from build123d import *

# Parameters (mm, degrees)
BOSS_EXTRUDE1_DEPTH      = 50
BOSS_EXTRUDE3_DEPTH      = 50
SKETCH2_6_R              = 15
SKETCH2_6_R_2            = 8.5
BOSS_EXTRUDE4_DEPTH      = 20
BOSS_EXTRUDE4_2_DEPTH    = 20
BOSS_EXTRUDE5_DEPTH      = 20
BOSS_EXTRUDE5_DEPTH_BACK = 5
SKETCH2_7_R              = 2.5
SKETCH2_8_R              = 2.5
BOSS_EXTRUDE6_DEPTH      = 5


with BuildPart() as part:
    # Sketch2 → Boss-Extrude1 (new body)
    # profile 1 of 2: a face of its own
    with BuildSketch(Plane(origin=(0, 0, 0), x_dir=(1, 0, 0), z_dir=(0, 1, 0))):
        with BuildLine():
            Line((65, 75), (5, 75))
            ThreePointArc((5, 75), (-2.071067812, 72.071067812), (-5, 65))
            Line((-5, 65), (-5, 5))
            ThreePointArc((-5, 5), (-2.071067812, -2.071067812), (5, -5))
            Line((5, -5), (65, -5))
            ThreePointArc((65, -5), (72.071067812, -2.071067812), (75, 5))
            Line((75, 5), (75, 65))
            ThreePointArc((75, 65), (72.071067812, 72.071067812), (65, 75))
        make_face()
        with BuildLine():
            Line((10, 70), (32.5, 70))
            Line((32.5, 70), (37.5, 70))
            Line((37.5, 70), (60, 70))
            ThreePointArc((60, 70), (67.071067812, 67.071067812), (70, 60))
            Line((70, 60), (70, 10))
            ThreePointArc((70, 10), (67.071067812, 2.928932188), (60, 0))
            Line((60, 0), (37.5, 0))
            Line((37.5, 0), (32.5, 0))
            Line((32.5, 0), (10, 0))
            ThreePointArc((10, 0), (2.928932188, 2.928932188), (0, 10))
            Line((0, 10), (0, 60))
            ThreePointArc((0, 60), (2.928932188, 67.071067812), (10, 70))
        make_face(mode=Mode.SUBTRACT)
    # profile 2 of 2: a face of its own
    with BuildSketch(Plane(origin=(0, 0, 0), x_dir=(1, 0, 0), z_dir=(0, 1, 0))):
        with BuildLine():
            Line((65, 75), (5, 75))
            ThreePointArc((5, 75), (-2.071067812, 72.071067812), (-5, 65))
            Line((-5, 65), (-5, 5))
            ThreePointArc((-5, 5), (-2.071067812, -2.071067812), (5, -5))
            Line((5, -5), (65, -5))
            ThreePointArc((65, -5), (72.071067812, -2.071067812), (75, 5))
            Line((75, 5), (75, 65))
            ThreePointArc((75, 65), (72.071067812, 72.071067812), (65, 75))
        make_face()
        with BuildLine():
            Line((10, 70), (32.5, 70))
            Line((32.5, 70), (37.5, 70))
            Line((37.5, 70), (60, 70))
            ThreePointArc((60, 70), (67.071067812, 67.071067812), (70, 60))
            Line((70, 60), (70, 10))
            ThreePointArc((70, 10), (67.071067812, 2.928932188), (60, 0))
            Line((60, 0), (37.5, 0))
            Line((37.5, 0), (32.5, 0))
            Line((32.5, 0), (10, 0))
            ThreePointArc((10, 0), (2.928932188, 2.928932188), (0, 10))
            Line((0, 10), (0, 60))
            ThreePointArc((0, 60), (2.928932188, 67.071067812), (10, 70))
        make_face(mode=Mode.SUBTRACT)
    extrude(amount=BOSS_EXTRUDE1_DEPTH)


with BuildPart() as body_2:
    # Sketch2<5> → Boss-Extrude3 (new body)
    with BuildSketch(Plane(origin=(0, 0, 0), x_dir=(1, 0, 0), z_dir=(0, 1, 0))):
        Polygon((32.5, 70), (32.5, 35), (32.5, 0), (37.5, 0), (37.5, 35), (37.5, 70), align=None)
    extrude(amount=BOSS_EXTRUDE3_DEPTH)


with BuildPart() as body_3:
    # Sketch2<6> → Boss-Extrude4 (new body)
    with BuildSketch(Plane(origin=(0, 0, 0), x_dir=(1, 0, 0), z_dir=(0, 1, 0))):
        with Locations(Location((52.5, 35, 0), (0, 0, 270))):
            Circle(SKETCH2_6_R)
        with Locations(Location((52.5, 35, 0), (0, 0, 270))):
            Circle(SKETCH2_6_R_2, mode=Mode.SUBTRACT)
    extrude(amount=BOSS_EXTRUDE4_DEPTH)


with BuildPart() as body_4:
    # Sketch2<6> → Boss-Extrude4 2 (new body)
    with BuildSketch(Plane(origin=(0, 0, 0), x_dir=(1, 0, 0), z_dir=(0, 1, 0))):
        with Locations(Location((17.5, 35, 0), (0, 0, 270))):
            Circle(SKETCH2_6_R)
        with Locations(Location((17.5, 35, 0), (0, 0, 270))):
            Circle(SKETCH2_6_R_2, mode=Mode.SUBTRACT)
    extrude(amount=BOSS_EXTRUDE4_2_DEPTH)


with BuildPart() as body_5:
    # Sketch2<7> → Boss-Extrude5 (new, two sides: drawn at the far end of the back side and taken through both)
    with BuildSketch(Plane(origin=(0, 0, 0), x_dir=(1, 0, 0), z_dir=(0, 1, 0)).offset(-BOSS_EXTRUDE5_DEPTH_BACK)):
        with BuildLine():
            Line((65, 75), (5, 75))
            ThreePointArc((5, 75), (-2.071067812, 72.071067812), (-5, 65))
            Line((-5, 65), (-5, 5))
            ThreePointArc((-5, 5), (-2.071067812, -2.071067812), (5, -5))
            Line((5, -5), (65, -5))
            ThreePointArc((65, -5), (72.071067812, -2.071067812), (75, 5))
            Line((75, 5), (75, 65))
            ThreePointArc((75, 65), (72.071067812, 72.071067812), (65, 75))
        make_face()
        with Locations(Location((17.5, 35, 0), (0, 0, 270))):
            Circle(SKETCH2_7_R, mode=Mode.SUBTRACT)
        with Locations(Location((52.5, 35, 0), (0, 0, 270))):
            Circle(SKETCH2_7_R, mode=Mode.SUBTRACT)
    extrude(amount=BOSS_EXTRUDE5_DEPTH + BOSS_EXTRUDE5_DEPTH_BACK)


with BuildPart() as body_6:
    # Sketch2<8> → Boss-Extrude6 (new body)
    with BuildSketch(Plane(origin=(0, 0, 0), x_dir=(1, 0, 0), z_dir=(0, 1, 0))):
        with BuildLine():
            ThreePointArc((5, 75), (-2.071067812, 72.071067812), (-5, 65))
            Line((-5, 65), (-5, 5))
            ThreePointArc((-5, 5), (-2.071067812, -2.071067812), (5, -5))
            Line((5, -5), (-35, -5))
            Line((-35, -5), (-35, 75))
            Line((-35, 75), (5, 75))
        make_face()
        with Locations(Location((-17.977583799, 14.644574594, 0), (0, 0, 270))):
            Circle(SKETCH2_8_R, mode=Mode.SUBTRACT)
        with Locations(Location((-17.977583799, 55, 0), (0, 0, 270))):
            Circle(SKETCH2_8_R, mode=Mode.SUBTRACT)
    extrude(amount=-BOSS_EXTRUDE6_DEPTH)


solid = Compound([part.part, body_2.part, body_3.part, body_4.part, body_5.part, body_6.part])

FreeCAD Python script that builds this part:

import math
import FreeCAD as App
import Part
import Sketcher

V = App.Vector
Q = App.Units.Quantity


def add_polygon(sketch, points):
    """Adds a closed chain of lines whose ends are joined by coincident constraints."""
    first, n = sketch.GeometryCount, len(points)
    for a, b in zip(points, points[1:] + points[:1]):
        sketch.addGeometry(Part.LineSegment(App.Vector(*a, 0), App.Vector(*b, 0)), False)
    for i in range(n):
        sketch.addConstraint(Sketcher.Constraint("Coincident", first + i, 2, first + (i + 1) % n, 1))

doc = App.newDocument("Part")
body = doc.addObject("PartDesign::Body", "Body")

# Sketch on XZ plane
sketch1 = body.newObject("Sketcher::SketchObject", "Sketch")
sketch1.AttachmentSupport = (doc.getObject("XZ_Plane"), [""])
sketch1.MapMode = "FlatFace"
sketch1.addGeometry(Part.LineSegment(V(65, -75, 0), V(5, -75, 0)), False)
sketch1.addGeometry(Part.ArcOfCircle(Part.Circle(V(5, -65, 0), V(0, 0, 1), 10), math.radians(180), math.radians(270)), False)
sketch1.addGeometry(Part.LineSegment(V(-5, -65, 0), V(-5, -5, 0)), False)
sketch1.addGeometry(Part.ArcOfCircle(Part.Circle(V(5, -5, 0), V(0, 0, 1), 10), math.radians(90), math.radians(180)), False)
sketch1.addGeometry(Part.LineSegment(V(5, 5, 0), V(65, 5, 0)), False)
sketch1.addGeometry(Part.ArcOfCircle(Part.Circle(V(65, -5, 0), V(0, 0, 1), 10), math.radians(0), math.radians(90)), False)
sketch1.addGeometry(Part.LineSegment(V(75, -5, 0), V(75, -65, 0)), False)
sketch1.addGeometry(Part.ArcOfCircle(Part.Circle(V(65, -65, 0), V(0, 0, 1), 10), math.radians(-90), math.radians(0)), False)
sketch1.addGeometry(Part.ArcOfCircle(Part.Circle(V(10, -60, 0), V(0, 0, 1), 10), math.radians(180), math.radians(270)), False)
sketch1.addGeometry(Part.LineSegment(V(10, -70, 0), V(60, -70, 0)), False)
sketch1.addGeometry(Part.ArcOfCircle(Part.Circle(V(60, -60, 0), V(0, 0, 1), 10), math.radians(-90), math.radians(0)), False)
sketch1.addGeometry(Part.LineSegment(V(70, -60, 0), V(70, -10, 0)), False)
sketch1.addGeometry(Part.ArcOfCircle(Part.Circle(V(60, -10, 0), V(0, 0, 1), 10), math.radians(0), math.radians(90)), False)
sketch1.addGeometry(Part.LineSegment(V(60, 0, 0), V(10, 0, 0)), False)
sketch1.addGeometry(Part.ArcOfCircle(Part.Circle(V(10, -10, 0), V(0, 0, 1), 10), math.radians(90), math.radians(180)), False)
sketch1.addGeometry(Part.LineSegment(V(0, -10, 0), V(0, -60, 0)), False)
sketch1.addConstraint(Sketcher.Constraint("Tangent", 0, 2, 1, 2))
sketch1.addConstraint(Sketcher.Constraint("Tangent", 1, 1, 2, 1))
sketch1.addConstraint(Sketcher.Constraint("Tangent", 2, 2, 3, 2))
sketch1.addConstraint(Sketcher.Constraint("Tangent", 3, 1, 4, 1))
sketch1.addConstraint(Sketcher.Constraint("Tangent", 4, 2, 5, 2))
sketch1.addConstraint(Sketcher.Constraint("Tangent", 5, 1, 6, 1))
sketch1.addConstraint(Sketcher.Constraint("Tangent", 6, 2, 7, 2))
sketch1.addConstraint(Sketcher.Constraint("Tangent", 7, 1, 0, 1))
sketch1.addConstraint(Sketcher.Constraint("Tangent", 8, 2, 9, 1))
sketch1.addConstraint(Sketcher.Constraint("Tangent", 9, 2, 10, 1))
sketch1.addConstraint(Sketcher.Constraint("Tangent", 10, 2, 11, 1))
sketch1.addConstraint(Sketcher.Constraint("Tangent", 11, 2, 12, 1))
sketch1.addConstraint(Sketcher.Constraint("Tangent", 12, 2, 13, 1))
sketch1.addConstraint(Sketcher.Constraint("Tangent", 13, 2, 14, 1))
sketch1.addConstraint(Sketcher.Constraint("Tangent", 14, 2, 15, 1))
sketch1.addConstraint(Sketcher.Constraint("Tangent", 15, 2, 8, 1))
sketch1.addConstraint(Sketcher.Constraint("Horizontal", 0))
sketch1.addConstraint(Sketcher.Constraint("Vertical", 2))
sketch1.addConstraint(Sketcher.Constraint("Horizontal", 4))
sketch1.addConstraint(Sketcher.Constraint("Vertical", 6))
sketch1.addConstraint(Sketcher.Constraint("Horizontal", 9))
sketch1.addConstraint(Sketcher.Constraint("Vertical", 11))
sketch1.addConstraint(Sketcher.Constraint("Horizontal", 13))
sketch1.addConstraint(Sketcher.Constraint("Vertical", 15))
sketch1.addConstraint(Sketcher.Constraint("Equal", 1, 3))
sketch1.addConstraint(Sketcher.Constraint("Equal", 3, 5))
sketch1.addConstraint(Sketcher.Constraint("Equal", 5, 7))
sketch1.addConstraint(Sketcher.Constraint("Equal", 7, 8))
sketch1.addConstraint(Sketcher.Constraint("Equal", 8, 10))
sketch1.addConstraint(Sketcher.Constraint("Equal", 10, 12))
sketch1.addConstraint(Sketcher.Constraint("Equal", 12, 14))
sketch1.addConstraint(Sketcher.Constraint("Symmetric", 2, 2, 3, 1, -1, 1))
sketch1.addConstraint(Sketcher.Constraint("PointOnObject", 12, 2, -1))
sketch1.addConstraint(Sketcher.Constraint("PointOnObject", 14, 2, -2))
sketch1.addConstraint(Sketcher.Constraint("Equal", 4, 2))
sketch1.addConstraint(Sketcher.Constraint("Equal", 13, 11))
sketch1.addConstraint(Sketcher.Constraint("Radius", 1, Q("10 mm")))
sketch1.addConstraint(Sketcher.Constraint("DistanceX", 0, 2, 0, 1, Q("60 mm")))
sketch1.addConstraint(Sketcher.Constraint("DistanceX", 9, 1, 9, 2, Q("50 mm")))
pad1 = body.newObject("PartDesign::Pad", "Pad")
pad1.Profile = sketch1
pad1.Length = 50
pad1.Reversed = True
body2 = doc.addObject("PartDesign::Body", "Body001")

# Sketch on XZ plane
sketch2 = body2.newObject("Sketcher::SketchObject", "Sketch001")
sketch2.AttachmentSupport = (doc.getObject("XZ_Plane001"), [""])
sketch2.MapMode = "FlatFace"
add_polygon(sketch2, [(32, -70), (32, 0), (38, 0), (38, -70)])  # lines 0-3
sketch2.addConstraint(Sketcher.Constraint("Vertical", 0))
sketch2.addConstraint(Sketcher.Constraint("Horizontal", 1))
sketch2.addConstraint(Sketcher.Constraint("Vertical", 2))
sketch2.addConstraint(Sketcher.Constraint("Horizontal", 3))
sketch2.addConstraint(Sketcher.Constraint("PointOnObject", 0, 2, -1))
sketch2.addConstraint(Sketcher.Constraint("DistanceX", 1, 1, 1, 2, Q("5 mm")))
sketch2.addConstraint(Sketcher.Constraint("DistanceY", 0, 1, 0, 2, Q("70 mm")))
sketch2.addConstraint(Sketcher.Constraint("DistanceX", -1, 1, 0, 2, Q("32.5 mm")))
pad2 = body2.newObject("PartDesign::Pad", "Pad001")
pad2.Profile = sketch2
pad2.Length = 50
pad2.Reversed = True
body3 = doc.addObject("PartDesign::Body", "Body002")

# Sketch on XZ plane
sketch3 = body3.newObject("Sketcher::SketchObject", "Sketch002")
sketch3.AttachmentSupport = (doc.getObject("XZ_Plane002"), [""])
sketch3.MapMode = "FlatFace"
sketch3.addGeometry(Part.Circle(V(52, -35, 0), V(0, 0, 1), 15), False)
sketch3.addGeometry(Part.Circle(V(52, -35, 0), V(0, 0, 1), 8), False)
sketch3.addConstraint(Sketcher.Constraint("Coincident", 1, 3, 0, 3))
sketch3.addConstraint(Sketcher.Constraint("Diameter", 0, Q("30 mm")))
sketch3.addConstraint(Sketcher.Constraint("Diameter", 1, Q("17 mm")))
sketch3.addConstraint(Sketcher.Constraint("DistanceY", 0, 3, -1, 1, Q("35 mm")))
sketch3.addConstraint(Sketcher.Constraint("DistanceX", -1, 1, 0, 3, Q("52.5 mm")))
pad3 = body3.newObject("PartDesign::Pad", "Pad002")
pad3.Profile = sketch3
pad3.Length = 20
pad3.Reversed = True
body4 = doc.addObject("PartDesign::Body", "Body003")

# Sketch on XZ plane
sketch4 = body4.newObject("Sketcher::SketchObject", "Sketch003")
sketch4.AttachmentSupport = (doc.getObject("XZ_Plane003"), [""])
sketch4.MapMode = "FlatFace"
sketch4.addGeometry(Part.Circle(V(18, -35, 0), V(0, 0, 1), 15), False)
sketch4.addGeometry(Part.Circle(V(18, -35, 0), V(0, 0, 1), 8), False)
sketch4.addConstraint(Sketcher.Constraint("Coincident", 1, 3, 0, 3))
sketch4.addConstraint(Sketcher.Constraint("Diameter", 0, Q("30 mm")))
sketch4.addConstraint(Sketcher.Constraint("Diameter", 1, Q("17 mm")))
sketch4.addConstraint(Sketcher.Constraint("DistanceY", 0, 3, -1, 1, Q("35 mm")))
sketch4.addConstraint(Sketcher.Constraint("DistanceX", -1, 1, 0, 3, Q("17.5 mm")))
pad4 = body4.newObject("PartDesign::Pad", "Pad003")
pad4.Profile = sketch4
pad4.Length = 20
pad4.Reversed = True
body5 = doc.addObject("PartDesign::Body", "Body004")

# Sketch on XZ plane
sketch5 = body5.newObject("Sketcher::SketchObject", "Sketch004")
sketch5.AttachmentSupport = (doc.getObject("XZ_Plane004"), [""])
sketch5.MapMode = "FlatFace"
sketch5.addGeometry(Part.LineSegment(V(65, -75, 0), V(5, -75, 0)), False)
sketch5.addGeometry(Part.ArcOfCircle(Part.Circle(V(5, -65, 0), V(0, 0, 1), 10), math.radians(180), math.radians(270)), False)
sketch5.addGeometry(Part.LineSegment(V(-5, -65, 0), V(-5, -5, 0)), False)
sketch5.addGeometry(Part.ArcOfCircle(Part.Circle(V(5, -5, 0), V(0, 0, 1), 10), math.radians(90), math.radians(180)), False)
sketch5.addGeometry(Part.LineSegment(V(5, 5, 0), V(65, 5, 0)), False)
sketch5.addGeometry(Part.ArcOfCircle(Part.Circle(V(65, -5, 0), V(0, 0, 1), 10), math.radians(0), math.radians(90)), False)
sketch5.addGeometry(Part.LineSegment(V(75, -5, 0), V(75, -65, 0)), False)
sketch5.addGeometry(Part.ArcOfCircle(Part.Circle(V(65, -65, 0), V(0, 0, 1), 10), math.radians(-90), math.radians(0)), False)
sketch5.addGeometry(Part.Circle(V(17.5, -35, 0), V(0, 0, 1), 2.5), False)
sketch5.addGeometry(Part.Circle(V(52.5, -35, 0), V(0, 0, 1), 2.5), False)
sketch5.addConstraint(Sketcher.Constraint("Tangent", 0, 2, 1, 2))
sketch5.addConstraint(Sketcher.Constraint("Tangent", 1, 1, 2, 1))
sketch5.addConstraint(Sketcher.Constraint("Tangent", 2, 2, 3, 2))
sketch5.addConstraint(Sketcher.Constraint("Tangent", 3, 1, 4, 1))
sketch5.addConstraint(Sketcher.Constraint("Tangent", 4, 2, 5, 2))
sketch5.addConstraint(Sketcher.Constraint("Tangent", 5, 1, 6, 1))
sketch5.addConstraint(Sketcher.Constraint("Tangent", 6, 2, 7, 2))
sketch5.addConstraint(Sketcher.Constraint("Tangent", 7, 1, 0, 1))
sketch5.addConstraint(Sketcher.Constraint("Horizontal", 0))
sketch5.addConstraint(Sketcher.Constraint("Vertical", 2))
sketch5.addConstraint(Sketcher.Constraint("Horizontal", 4))
sketch5.addConstraint(Sketcher.Constraint("Vertical", 6))
sketch5.addConstraint(Sketcher.Constraint("Equal", 1, 3))
sketch5.addConstraint(Sketcher.Constraint("Equal", 3, 5))
sketch5.addConstraint(Sketcher.Constraint("Equal", 5, 7))
sketch5.addConstraint(Sketcher.Constraint("Equal", 8, 9))
sketch5.addConstraint(Sketcher.Constraint("Symmetric", 2, 2, 3, 1, -1, 1))
sketch5.addConstraint(Sketcher.Constraint("Horizontal", 8, 3, 9, 3))
sketch5.addConstraint(Sketcher.Constraint("Equal", 4, 2))
sketch5.addConstraint(Sketcher.Constraint("Diameter", 8, Q("5 mm")))
sketch5.addConstraint(Sketcher.Constraint("Radius", 1, Q("10 mm")))
sketch5.addConstraint(Sketcher.Constraint("DistanceX", 0, 2, 0, 1, Q("60 mm")))
sketch5.addConstraint(Sketcher.Constraint("DistanceY", 8, 3, -1, 1, Q("35 mm")))
sketch5.addConstraint(Sketcher.Constraint("DistanceX", 8, 3, 9, 3, Q("35 mm")))
sketch5.addConstraint(Sketcher.Constraint("DistanceX", -1, 1, 8, 3, Q("17.5 mm")))
pad5 = body5.newObject("PartDesign::Pad", "Pad004")
pad5.Profile = sketch5
pad5.Type = "TwoLengths"
pad5.Length = 20
pad5.Length2 = 5
pad5.Reversed = True
body6 = doc.addObject("PartDesign::Body", "Body005")

# Sketch on XZ plane
sketch6 = body6.newObject("Sketcher::SketchObject", "Sketch005")
sketch6.AttachmentSupport = (doc.getObject("XZ_Plane005"), [""])
sketch6.MapMode = "FlatFace"
sketch6.addGeometry(Part.ArcOfCircle(Part.Circle(V(5, -65, 0), V(0, 0, 1), 10), math.radians(180), math.radians(270)), False)
sketch6.addGeometry(Part.LineSegment(V(5, -75, 0), V(-35, -75, 0)), False)
sketch6.addGeometry(Part.LineSegment(V(-35, -75, 0), V(-35, 5, 0)), False)
sketch6.addGeometry(Part.LineSegment(V(-35, 5, 0), V(5, 5, 0)), False)
sketch6.addGeometry(Part.ArcOfCircle(Part.Circle(V(5, -5, 0), V(0, 0, 1), 10), math.radians(90), math.radians(180)), False)
sketch6.addGeometry(Part.LineSegment(V(-5, -5, 0), V(-5, -65, 0)), False)
sketch6.addGeometry(Part.Circle(V(-18, -14.6, 0), V(0, 0, 1), 2.5), False)
sketch6.addGeometry(Part.Circle(V(-18, -55, 0), V(0, 0, 1), 2.5), False)
sketch6.addConstraint(Sketcher.Constraint("Tangent", 0, 2, 1, 1))
sketch6.addConstraint(Sketcher.Constraint("Coincident", 1, 2, 2, 1))
sketch6.addConstraint(Sketcher.Constraint("Coincident", 2, 2, 3, 1))
sketch6.addConstraint(Sketcher.Constraint("Tangent", 3, 2, 4, 1))
sketch6.addConstraint(Sketcher.Constraint("Tangent", 4, 2, 5, 1))
sketch6.addConstraint(Sketcher.Constraint("Tangent", 5, 2, 0, 1))
sketch6.addConstraint(Sketcher.Constraint("Horizontal", 1))
sketch6.addConstraint(Sketcher.Constraint("Vertical", 2))
sketch6.addConstraint(Sketcher.Constraint("Horizontal", 3))
sketch6.addConstraint(Sketcher.Constraint("Vertical", 5))
sketch6.addConstraint(Sketcher.Constraint("Equal", 0, 4))
sketch6.addConstraint(Sketcher.Constraint("Equal", 6, 7))
sketch6.addConstraint(Sketcher.Constraint("Symmetric", 3, 2, 4, 2, -1, 1))
sketch6.addConstraint(Sketcher.Constraint("Vertical", 6, 3, 7, 3))
sketch6.addConstraint(Sketcher.Constraint("Diameter", 6, Q("5 mm")))
sketch6.addConstraint(Sketcher.Constraint("Radius", 0, Q("10 mm")))
sketch6.addConstraint(Sketcher.Constraint("DistanceX", 1, 2, 1, 1, Q("40 mm")))
sketch6.addConstraint(Sketcher.Constraint("DistanceY", 2, 1, 2, 2, Q("80 mm")))
sketch6.addConstraint(Sketcher.Constraint("DistanceY", 7, 3, -1, 1, Q("55 mm")))
sketch6.addConstraint(Sketcher.Constraint("DistanceX", 6, 3, -1, 1, Q("17.977584 mm")))
sketch6.addConstraint(Sketcher.Constraint("DistanceY", 6, 3, -1, 1, Q("14.644575 mm")))
pad6 = body6.newObject("PartDesign::Pad", "Pad005")
pad6.Profile = sketch6
pad6.Length = 5

doc.recompute()
